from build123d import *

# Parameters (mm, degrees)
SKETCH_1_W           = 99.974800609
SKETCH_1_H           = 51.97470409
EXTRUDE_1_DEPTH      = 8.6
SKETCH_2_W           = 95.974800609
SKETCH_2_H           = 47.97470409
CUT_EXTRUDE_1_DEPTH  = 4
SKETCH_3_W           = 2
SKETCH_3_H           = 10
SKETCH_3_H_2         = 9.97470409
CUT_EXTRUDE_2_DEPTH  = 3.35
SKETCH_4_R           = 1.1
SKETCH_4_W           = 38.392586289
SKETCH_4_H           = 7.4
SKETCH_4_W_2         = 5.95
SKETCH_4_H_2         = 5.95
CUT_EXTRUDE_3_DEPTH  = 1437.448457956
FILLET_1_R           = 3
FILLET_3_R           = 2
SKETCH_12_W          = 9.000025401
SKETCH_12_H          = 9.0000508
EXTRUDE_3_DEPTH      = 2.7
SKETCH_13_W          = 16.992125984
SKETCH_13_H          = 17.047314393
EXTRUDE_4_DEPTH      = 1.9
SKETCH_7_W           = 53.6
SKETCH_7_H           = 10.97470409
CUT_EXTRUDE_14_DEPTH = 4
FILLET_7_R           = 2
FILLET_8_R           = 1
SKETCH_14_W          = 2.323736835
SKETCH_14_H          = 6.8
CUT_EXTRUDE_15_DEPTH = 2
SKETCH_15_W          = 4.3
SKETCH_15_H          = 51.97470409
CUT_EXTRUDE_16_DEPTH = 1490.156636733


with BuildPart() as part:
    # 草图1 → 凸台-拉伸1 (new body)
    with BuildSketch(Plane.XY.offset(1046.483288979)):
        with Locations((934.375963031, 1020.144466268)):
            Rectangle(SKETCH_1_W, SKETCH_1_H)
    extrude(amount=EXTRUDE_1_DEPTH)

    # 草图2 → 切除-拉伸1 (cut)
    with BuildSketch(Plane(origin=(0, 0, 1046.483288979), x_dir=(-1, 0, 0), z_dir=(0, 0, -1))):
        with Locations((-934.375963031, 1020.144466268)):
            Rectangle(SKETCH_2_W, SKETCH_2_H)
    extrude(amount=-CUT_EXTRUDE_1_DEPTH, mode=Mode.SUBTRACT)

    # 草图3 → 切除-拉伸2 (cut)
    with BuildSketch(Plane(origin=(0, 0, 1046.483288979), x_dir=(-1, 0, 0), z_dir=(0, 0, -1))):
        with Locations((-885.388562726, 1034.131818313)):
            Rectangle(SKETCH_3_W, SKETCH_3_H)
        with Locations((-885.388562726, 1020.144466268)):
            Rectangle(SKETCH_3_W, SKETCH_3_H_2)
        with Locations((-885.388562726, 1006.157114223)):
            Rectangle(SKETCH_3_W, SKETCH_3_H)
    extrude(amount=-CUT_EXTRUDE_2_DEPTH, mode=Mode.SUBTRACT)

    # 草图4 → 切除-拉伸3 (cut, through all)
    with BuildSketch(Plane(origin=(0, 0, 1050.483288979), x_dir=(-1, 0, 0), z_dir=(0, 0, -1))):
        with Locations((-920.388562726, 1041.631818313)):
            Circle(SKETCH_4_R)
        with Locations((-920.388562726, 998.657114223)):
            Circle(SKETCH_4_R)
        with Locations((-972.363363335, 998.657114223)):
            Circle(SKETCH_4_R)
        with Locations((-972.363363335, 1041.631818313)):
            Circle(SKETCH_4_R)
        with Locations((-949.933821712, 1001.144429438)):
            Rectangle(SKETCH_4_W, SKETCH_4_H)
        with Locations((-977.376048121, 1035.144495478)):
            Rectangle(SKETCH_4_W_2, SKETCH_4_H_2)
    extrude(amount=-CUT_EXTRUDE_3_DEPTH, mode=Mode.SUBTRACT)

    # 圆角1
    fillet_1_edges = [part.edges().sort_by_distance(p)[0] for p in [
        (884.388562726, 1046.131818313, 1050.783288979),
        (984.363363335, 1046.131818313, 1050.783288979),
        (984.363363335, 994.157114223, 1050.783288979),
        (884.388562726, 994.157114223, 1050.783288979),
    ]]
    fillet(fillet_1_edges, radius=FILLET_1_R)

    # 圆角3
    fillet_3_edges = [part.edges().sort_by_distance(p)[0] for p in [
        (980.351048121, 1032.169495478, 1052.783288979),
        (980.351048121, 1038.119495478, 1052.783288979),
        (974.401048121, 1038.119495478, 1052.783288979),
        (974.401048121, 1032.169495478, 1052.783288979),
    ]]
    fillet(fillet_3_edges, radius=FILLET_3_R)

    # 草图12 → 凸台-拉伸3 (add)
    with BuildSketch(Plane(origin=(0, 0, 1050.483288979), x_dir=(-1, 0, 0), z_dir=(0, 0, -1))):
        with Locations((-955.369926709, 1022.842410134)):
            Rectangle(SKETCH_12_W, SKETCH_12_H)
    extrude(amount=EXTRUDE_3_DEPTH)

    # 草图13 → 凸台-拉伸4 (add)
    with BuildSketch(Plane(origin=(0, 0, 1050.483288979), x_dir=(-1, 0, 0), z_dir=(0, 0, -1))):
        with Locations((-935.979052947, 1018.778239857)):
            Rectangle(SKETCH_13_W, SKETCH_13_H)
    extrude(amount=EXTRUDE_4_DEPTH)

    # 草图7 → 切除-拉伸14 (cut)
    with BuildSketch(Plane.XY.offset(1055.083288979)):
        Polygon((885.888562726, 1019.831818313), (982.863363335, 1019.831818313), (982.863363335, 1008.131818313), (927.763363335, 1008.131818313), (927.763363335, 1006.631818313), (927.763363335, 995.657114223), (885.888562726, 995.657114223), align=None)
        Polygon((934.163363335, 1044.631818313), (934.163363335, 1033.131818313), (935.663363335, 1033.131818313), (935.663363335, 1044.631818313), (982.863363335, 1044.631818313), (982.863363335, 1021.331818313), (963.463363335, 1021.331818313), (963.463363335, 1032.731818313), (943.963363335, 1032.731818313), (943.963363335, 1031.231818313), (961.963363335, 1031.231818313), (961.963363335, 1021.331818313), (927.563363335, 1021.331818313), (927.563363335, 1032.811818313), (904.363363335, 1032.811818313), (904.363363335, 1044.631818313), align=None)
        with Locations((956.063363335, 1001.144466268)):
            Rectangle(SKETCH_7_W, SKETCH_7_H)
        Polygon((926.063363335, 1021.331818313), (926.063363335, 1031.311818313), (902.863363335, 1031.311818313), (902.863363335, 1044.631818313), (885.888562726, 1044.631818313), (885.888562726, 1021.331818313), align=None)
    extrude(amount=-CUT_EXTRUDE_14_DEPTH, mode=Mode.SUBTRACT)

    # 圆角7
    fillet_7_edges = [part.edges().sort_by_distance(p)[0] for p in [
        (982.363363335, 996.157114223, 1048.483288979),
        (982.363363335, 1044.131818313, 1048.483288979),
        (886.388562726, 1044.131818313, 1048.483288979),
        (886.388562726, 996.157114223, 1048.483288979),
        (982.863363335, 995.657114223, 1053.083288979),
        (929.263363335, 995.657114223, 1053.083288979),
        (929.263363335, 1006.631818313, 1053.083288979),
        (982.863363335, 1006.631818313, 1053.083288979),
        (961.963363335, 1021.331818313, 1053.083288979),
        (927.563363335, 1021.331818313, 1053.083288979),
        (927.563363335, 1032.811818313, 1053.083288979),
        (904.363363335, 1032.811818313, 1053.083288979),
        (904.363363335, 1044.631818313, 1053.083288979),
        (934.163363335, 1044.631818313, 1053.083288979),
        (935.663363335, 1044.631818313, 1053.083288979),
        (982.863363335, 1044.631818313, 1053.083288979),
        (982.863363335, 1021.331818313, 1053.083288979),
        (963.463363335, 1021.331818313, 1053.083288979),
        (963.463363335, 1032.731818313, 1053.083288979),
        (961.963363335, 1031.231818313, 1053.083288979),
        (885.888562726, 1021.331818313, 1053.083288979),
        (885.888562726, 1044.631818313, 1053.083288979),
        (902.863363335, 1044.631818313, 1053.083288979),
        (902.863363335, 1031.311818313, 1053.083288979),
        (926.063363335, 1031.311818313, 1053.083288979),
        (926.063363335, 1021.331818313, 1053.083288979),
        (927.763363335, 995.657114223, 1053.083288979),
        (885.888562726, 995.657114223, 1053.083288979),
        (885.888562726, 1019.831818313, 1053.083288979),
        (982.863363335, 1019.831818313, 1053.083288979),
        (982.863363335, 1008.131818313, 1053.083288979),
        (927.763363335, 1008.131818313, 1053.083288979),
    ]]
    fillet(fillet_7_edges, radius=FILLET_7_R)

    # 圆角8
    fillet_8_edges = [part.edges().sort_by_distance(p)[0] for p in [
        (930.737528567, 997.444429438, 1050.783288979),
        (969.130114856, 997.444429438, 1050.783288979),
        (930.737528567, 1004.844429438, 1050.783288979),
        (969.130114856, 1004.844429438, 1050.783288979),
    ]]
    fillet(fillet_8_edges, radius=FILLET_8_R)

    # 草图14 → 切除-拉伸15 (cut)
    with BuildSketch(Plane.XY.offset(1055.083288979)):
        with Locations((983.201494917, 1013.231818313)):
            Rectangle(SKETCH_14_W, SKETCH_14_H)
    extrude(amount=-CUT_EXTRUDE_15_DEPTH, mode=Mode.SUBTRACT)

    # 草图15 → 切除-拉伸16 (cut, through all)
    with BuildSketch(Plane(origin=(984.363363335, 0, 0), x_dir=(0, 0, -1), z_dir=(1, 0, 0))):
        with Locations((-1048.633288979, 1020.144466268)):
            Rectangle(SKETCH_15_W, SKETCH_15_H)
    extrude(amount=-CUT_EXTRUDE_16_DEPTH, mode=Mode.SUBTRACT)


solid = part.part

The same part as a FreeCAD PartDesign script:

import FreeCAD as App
import Part
import Sketcher
from FreeCAD import Vector
Q = App.Units.Quantity


def edges_at(feature, points):
    """Names of the edges that pass closest to the given points."""
    edges = feature.Shape.Edges
    near = lambda p: min(range(len(edges)), key=lambda i: edges[i].distToShape(Part.Vertex(*p))[0])
    return sorted({f"Edge{near(p) + 1}" for p in points})

doc = App.newDocument("Part")
params = doc.addObject("Spreadsheet::Sheet", "Params")
for row, (alias, value) in enumerate([
    ("pad1_length", "8.6 mm"),
    ("pocket1_length", "4 mm"),
    ("sketch3_width", "2 mm"),
    ("sketch3_height", "10 mm"),
    ("pocket2_length", "3.35 mm"),
    ("sketch4_diameter", "2.2 mm"),
    ("sketch4_height", "7.4 mm"),
    ("sketch4_width", "5.95 mm"),
    ("fillet_radius", "3 mm"),
    ("fillet2_radius", "2 mm"),
    ("pad2_length", "2.7 mm"),
    ("pad3_length", "1.9 mm"),
    ("sketch7_width", "18 mm"),
    ("sketch7_width2", "55.1 mm"),
    ("sketch7_width3", "29.8 mm"),
    ("sketch7_width4", "23.2 mm"),
    ("sketch7_width5", "34.4 mm"),
    ("pocket4_length", "4 mm"),
    ("fillet3_radius", "2 mm"),
    ("fillet4_radius", "1 mm"),
    ("sketch8_height", "6.8 mm"),
    ("pocket5_length", "2 mm"),
    ("sketch9_height", "4.3 mm"),
], start=1):
    params.set(f"A{row}", alias)
    params.set(f"B{row}", "=" + value)
    params.setAlias(f"B{row}", alias)

body = doc.addObject("PartDesign::Body", "Body")

sketch1 = body.newObject("Sketcher::SketchObject", "Sketch")
sketch1.AttachmentSupport = (doc.getObject("XY_Plane"), [""])
sketch1.MapMode = "FlatFace"
sketch1.AttachmentOffset = App.Placement(Vector(0, 0, 1046.483289), App.Rotation())
sketch1.addGeometry(Part.LineSegment(Vector(884, 1046, 0), Vector(884, 994, 0)), False)
sketch1.addGeometry(Part.LineSegment(Vector(884, 994, 0), Vector(984, 994, 0)), False)
sketch1.addGeometry(Part.LineSegment(Vector(984, 994, 0), Vector(984, 1046, 0)), False)
sketch1.addGeometry(Part.LineSegment(Vector(984, 1046, 0), Vector(884, 1046, 0)), False)
sketch1.addConstraint(Sketcher.Constraint("Coincident", 0, 2, 1, 1))
sketch1.addConstraint(Sketcher.Constraint("Coincident", 1, 2, 2, 1))
sketch1.addConstraint(Sketcher.Constraint("Coincident", 2, 2, 3, 1))
sketch1.addConstraint(Sketcher.Constraint("Coincident", 3, 2, 0, 1))
sketch1.addConstraint(Sketcher.Constraint("Vertical", 0))
sketch1.addConstraint(Sketcher.Constraint("Horizontal", 1))
sketch1.addConstraint(Sketcher.Constraint("Vertical", 2))
sketch1.addConstraint(Sketcher.Constraint("Horizontal", 3))
sketch1.addConstraint(Sketcher.Constraint("DistanceX", 1, 1, 1, 2, Q("99.974801 mm")))
sketch1.addConstraint(Sketcher.Constraint("DistanceY", 0, 2, 0, 1, Q("51.974704 mm")))
sketch1.addConstraint(Sketcher.Constraint("DistanceY", -1, 1, 2, 2, Q("1046.131818 mm")))
sketch1.addConstraint(Sketcher.Constraint("DistanceX", -1, 1, 0, 2, Q("884.388563 mm")))
pad1 = body.newObject("PartDesign::Pad", "Pad")
pad1.Profile = sketch1
pad1.setExpression("Length", "Params.pad1_length")

sketch2 = body.newObject("Sketcher::SketchObject", "Sketch001")
sketch2.AttachmentSupport = (doc.getObject("XY_Plane"), [""])
sketch2.MapMode = "FlatFace"
sketch2.AttachmentOffset = App.Placement(Vector(0, 0, 1046.483289), App.Rotation())
sketch2.addGeometry(Part.LineSegment(Vector(982, 1044, 0), Vector(982, 996, 0)), False)
sketch2.addGeometry(Part.LineSegment(Vector(982, 996, 0), Vector(886, 996, 0)), False)
sketch2.addGeometry(Part.LineSegment(Vector(886, 996, 0), Vector(886, 1044, 0)), False)
sketch2.addGeometry(Part.LineSegment(Vector(886, 1044, 0), Vector(982, 1044, 0)), False)
sketch2.addConstraint(Sketcher.Constraint("Coincident", 0, 2, 1, 1))
sketch2.addConstraint(Sketcher.Constraint("Coincident", 1, 2, 2, 1))
sketch2.addConstraint(Sketcher.Constraint("Coincident", 2, 2, 3, 1))
sketch2.addConstraint(Sketcher.Constraint("Coincident", 3, 2, 0, 1))
sketch2.addConstraint(Sketcher.Constraint("Vertical", 0))
sketch2.addConstraint(Sketcher.Constraint("Horizontal", 1))
sketch2.addConstraint(Sketcher.Constraint("Vertical", 2))
sketch2.addConstraint(Sketcher.Constraint("Horizontal", 3))
sketch2.addConstraint(Sketcher.Constraint("DistanceX", 1, 2, 1, 1, Q("95.974801 mm")))
sketch2.addConstraint(Sketcher.Constraint("DistanceY", 0, 2, 0, 1, Q("47.974704 mm")))
sketch2.addConstraint(Sketcher.Constraint("DistanceY", -1, 1, 2, 2, Q("1044.131818 mm")))
sketch2.addConstraint(Sketcher.Constraint("DistanceX", -1, 1, 0, 2, Q("982.363363 mm")))
pocket1 = body.newObject("PartDesign::Pocket", "Pocket")
pocket1.Profile = sketch2
pocket1.setExpression("Length", "Params.pocket1_length")
pocket1.Reversed = True

sketch3 = body.newObject("Sketcher::SketchObject", "Sketch002")
sketch3.AttachmentSupport = (doc.getObject("XY_Plane"), [""])
sketch3.MapMode = "FlatFace"
sketch3.AttachmentOffset = App.Placement(Vector(0, 0, 1046.483289), App.Rotation())
sketch3.addGeometry(Part.LineSegment(Vector(886.4, 1039.1, 0), Vector(886.4, 1029.1, 0)), False)
sketch3.addGeometry(Part.LineSegment(Vector(886.4, 1029.1, 0), Vector(884.4, 1029.1, 0)), False)
sketch3.addGeometry(Part.LineSegment(Vector(884.4, 1029.1, 0), Vector(884.4, 1039.1, 0)), False)
sketch3.addGeometry(Part.LineSegment(Vector(884.4, 1039.1, 0), Vector(886.4, 1039.1, 0)), False)
sketch3.addGeometry(Part.LineSegment(Vector(886.4, 1025.1, 0), Vector(886.4, 1015.2, 0)), False)
sketch3.addGeometry(Part.LineSegment(Vector(886.4, 1015.2, 0), Vector(884.4, 1015.2, 0)), False)
sketch3.addGeometry(Part.LineSegment(Vector(884.4, 1015.2, 0), Vector(884.4, 1025.1, 0)), False)
sketch3.addGeometry(Part.LineSegment(Vector(884.4, 1025.1, 0), Vector(886.4, 1025.1, 0)), False)
sketch3.addGeometry(Part.LineSegment(Vector(886.4, 1011.2, 0), Vector(886.4, 1001.2, 0)), False)
sketch3.addGeometry(Part.LineSegment(Vector(886.4, 1001.2, 0), Vector(884.4, 1001.2, 0)), False)
sketch3.addGeometry(Part.LineSegment(Vector(884.4, 1001.2, 0), Vector(884.4, 1011.2, 0)), False)
sketch3.addGeometry(Part.LineSegment(Vector(884.4, 1011.2, 0), Vector(886.4, 1011.2, 0)), False)
sketch3.addConstraint(Sketcher.Constraint("Coincident", 0, 2, 1, 1))
sketch3.addConstraint(Sketcher.Constraint("Coincident", 1, 2, 2, 1))
sketch3.addConstraint(Sketcher.Constraint("Coincident", 2, 2, 3, 1))
sketch3.addConstraint(Sketcher.Constraint("Coincident", 3, 2, 0, 1))
sketch3.addConstraint(Sketcher.Constraint("Coincident", 4, 2, 5, 1))
sketch3.addConstraint(Sketcher.Constraint("Coincident", 5, 2, 6, 1))
sketch3.addConstraint(Sketcher.Constraint("Coincident", 6, 2, 7, 1))
sketch3.addConstraint(Sketcher.Constraint("Coincident", 7, 2, 4, 1))
sketch3.addConstraint(Sketcher.Constraint("Coincident", 8, 2, 9, 1))
sketch3.addConstraint(Sketcher.Constraint("Coincident", 9, 2, 10, 1))
sketch3.addConstraint(Sketcher.Constraint("Coincident", 10, 2, 11, 1))
sketch3.addConstraint(Sketcher.Constraint("Coincident", 11, 2, 8, 1))
sketch3.addConstraint(Sketcher.Constraint("Vertical", 0))
sketch3.addConstraint(Sketcher.Constraint("Horizontal", 1))
sketch3.addConstraint(Sketcher.Constraint("Vertical", 2))
sketch3.addConstraint(Sketcher.Constraint("Horizontal", 3))
sketch3.addConstraint(Sketcher.Constraint("Vertical", 4))
sketch3.addConstraint(Sketcher.Constraint("Horizontal", 5))
sketch3.addConstraint(Sketcher.Constraint("Vertical", 6))
sketch3.addConstraint(Sketcher.Constraint("Horizontal", 7))
sketch3.addConstraint(Sketcher.Constraint("Vertical", 8))
sketch3.addConstraint(Sketcher.Constraint("Horizontal", 9))
sketch3.addConstraint(Sketcher.Constraint("Vertical", 10))
sketch3.addConstraint(Sketcher.Constraint("Horizontal", 11))
sketch3.addConstraint(Sketcher.Constraint("Vertical", 3, 2, 4, 2))
sketch3.addConstraint(Sketcher.Constraint("Vertical", 2, 2, 5, 2))
sketch3.addConstraint(Sketcher.Constraint("Vertical", 7, 2, 8, 2))
sketch3.addConstraint(Sketcher.Constraint("Vertical", 6, 2, 9, 2))
sketch3.addConstraint(Sketcher.Constraint("Equal", 2, 8))
sketch3.addConstraint(Sketcher.Constraint("DistanceX", 1, 2, 1, 1, Q("2 mm")))
sketch3.addConstraint(Sketcher.Constraint("DistanceY", 0, 2, 0, 1, Q("10 mm")))
sketch3.addConstraint(Sketcher.Constraint("DistanceY", 6, 2, 1, 2, Q("4 mm")))
sketch3.addConstraint(Sketcher.Constraint("DistanceY", 8, 2, 4, 2, Q("14 mm")))
sketch3.addConstraint(Sketcher.Constraint("DistanceY", 4, 2, 4, 1, Q("9.974704 mm")))
sketch3.addConstraint(Sketcher.Constraint("DistanceY", -1, 1, 0, 2, Q("1029.131818 mm")))
sketch3.addConstraint(Sketcher.Constraint("DistanceX", -1, 1, 0, 2, Q("886.388563 mm")))
sketch3.setExpression("Constraints[29]", "Params.sketch3_width")
sketch3.setExpression("Constraints[30]", "Params.sketch3_height")
pocket2 = body.newObject("PartDesign::Pocket", "Pocket001")
pocket2.Profile = sketch3
pocket2.setExpression("Length", "Params.pocket2_length")
pocket2.Reversed = True

sketch4 = body.newObject("Sketcher::SketchObject", "Sketch003")
sketch4.AttachmentSupport = (doc.getObject("XY_Plane"), [""])
sketch4.MapMode = "FlatFace"
sketch4.AttachmentOffset = App.Placement(Vector(0, 0, 1050.483289), App.Rotation())
sketch4.addGeometry(Part.Circle(Vector(920.4, 1041.6, 0), Vector(0, 0, 1), 1.1), False)
sketch4.addGeometry(Part.Circle(Vector(920.4, 998.7, 0), Vector(0, 0, 1), 1.1), False)
sketch4.addGeometry(Part.Circle(Vector(972.4, 998.7, 0), Vector(0, 0, 1), 1.1), False)
sketch4.addGeometry(Part.Circle(Vector(972.4, 1041.6, 0), Vector(0, 0, 1), 1.1), False)
sketch4.addGeometry(Part.LineSegment(Vector(969.1, 1004.8, 0), Vector(969.1, 997.4, 0)), False)
sketch4.addGeometry(Part.LineSegment(Vector(969.1, 997.4, 0), Vector(930.7, 997.4, 0)), False)
sketch4.addGeometry(Part.LineSegment(Vector(930.7, 997.4, 0), Vector(930.7, 1004.8, 0)), False)
sketch4.addGeometry(Part.LineSegment(Vector(930.7, 1004.8, 0), Vector(969.1, 1004.8, 0)), False)
sketch4.addGeometry(Part.LineSegment(Vector(980.4, 1038.1, 0), Vector(980.4, 1032.2, 0)), False)
sketch4.addGeometry(Part.LineSegment(Vector(980.4, 1032.2, 0), Vector(974.4, 1032.2, 0)), False)
sketch4.addGeometry(Part.LineSegment(Vector(974.4, 1032.2, 0), Vector(974.4, 1038.1, 0)), False)
sketch4.addGeometry(Part.LineSegment(Vector(974.4, 1038.1, 0), Vector(980.4, 1038.1, 0)), False)
sketch4.addConstraint(Sketcher.Constraint("Coincident", 4, 2, 5, 1))
sketch4.addConstraint(Sketcher.Constraint("Coincident", 5, 2, 6, 1))
sketch4.addConstraint(Sketcher.Constraint("Coincident", 6, 2, 7, 1))
sketch4.addConstraint(Sketcher.Constraint("Coincident", 7, 2, 4, 1))
sketch4.addConstraint(Sketcher.Constraint("Coincident", 8, 2, 9, 1))
sketch4.addConstraint(Sketcher.Constraint("Coincident", 9, 2, 10, 1))
sketch4.addConstraint(Sketcher.Constraint("Coincident", 10, 2, 11, 1))
sketch4.addConstraint(Sketcher.Constraint("Coincident", 11, 2, 8, 1))
sketch4.addConstraint(Sketcher.Constraint("Vertical", 4))
sketch4.addConstraint(Sketcher.Constraint("Horizontal", 5))
sketch4.addConstraint(Sketcher.Constraint("Vertical", 6))
sketch4.addConstraint(Sketcher.Constraint("Horizontal", 7))
sketch4.addConstraint(Sketcher.Constraint("Vertical", 8))
sketch4.addConstraint(Sketcher.Constraint("Horizontal", 9))
sketch4.addConstraint(Sketcher.Constraint("Vertical", 10))
sketch4.addConstraint(Sketcher.Constraint("Horizontal", 11))
sketch4.addConstraint(Sketcher.Constraint("Equal", 0, 1))
sketch4.addConstraint(Sketcher.Constraint("Equal", 1, 2))
sketch4.addConstraint(Sketcher.Constraint("Equal", 2, 3))
sketch4.addConstraint(Sketcher.Constraint("Horizontal", 1, 3, 2, 3))
sketch4.addConstraint(Sketcher.Constraint("Horizontal", 0, 3, 3, 3))
sketch4.addConstraint(Sketcher.Constraint("Vertical", 0, 3, 1, 3))
sketch4.addConstraint(Sketcher.Constraint("Vertical", 2, 3, 3, 3))
sketch4.addConstraint(Sketcher.Constraint("Equal", 11, 8))
sketch4.addConstraint(Sketcher.Constraint("Diameter", 0, Q("2.2 mm")))
sketch4.addConstraint(Sketcher.Constraint("DistanceY", 4, 2, 4, 1, Q("7.4 mm")))
sketch4.addConstraint(Sketcher.Constraint("DistanceX", 9, 2, 9, 1, Q("5.95 mm")))
sketch4.addConstraint(Sketcher.Constraint("DistanceX", 1, 3, 2, 3, Q("51.974801 mm")))
sketch4.addConstraint(Sketcher.Constraint("DistanceX", 5, 2, 5, 1, Q("38.392586 mm")))
sketch4.addConstraint(Sketcher.Constraint("DistanceY", -1, 1, 0, 3, Q("1041.631818 mm")))
sketch4.addConstraint(Sketcher.Constraint("DistanceY", -1, 1, 4, 2, Q("997.444429 mm")))
sketch4.addConstraint(Sketcher.Constraint("DistanceX", -1, 1, 5, 2, Q("930.737529 mm")))
sketch4.addConstraint(Sketcher.Constraint("DistanceX", -1, 1, 8, 2, Q("980.351048 mm")))
sketch4.addConstraint(Sketcher.Constraint("DistanceX", 4, 2, 2, 3, Q("3.233248 mm")))
sketch4.addConstraint(Sketcher.Constraint("DistanceY", 2, 3, 8, 2, Q("33.512381 mm")))
sketch4.addConstraint(Sketcher.Constraint("DistanceY", -1, 1, 1, 3, Q("998.657114 mm")))
sketch4.setExpression("Constraints[24]", "Params.sketch4_diameter")
sketch4.setExpression("Constraints[25]", "Params.sketch4_height")
sketch4.setExpression("Constraints[26]", "Params.sketch4_width")
pocket3 = body.newObject("PartDesign::Pocket", "Pocket002")
pocket3.Profile = sketch4
pocket3.Type = "ThroughAll"
pocket3.Reversed = True
doc.recompute()

fillet = body.newObject("PartDesign::Fillet", "Fillet")
fillet.Base = (pocket3, edges_at(pocket3, [
    (884.389, 1046.132, 1050.783),
    (984.363, 1046.132, 1050.783),
    (984.363, 994.157, 1050.783),
    (884.389, 994.157, 1050.783),
]))
fillet.setExpression("Radius", "Params.fillet_radius")
doc.recompute()

fillet2 = body.newObject("PartDesign::Fillet", "Fillet001")
fillet2.Base = (fillet, edges_at(fillet, [
    (980.351, 1032.169, 1052.783),
    (980.351, 1038.119, 1052.783),
    (974.401, 1038.119, 1052.783),
    (974.401, 1032.169, 1052.783),
]))
fillet2.setExpression("Radius", "Params.fillet2_radius")

sketch5 = body.newObject("Sketcher::SketchObject", "Sketch004")
sketch5.AttachmentSupport = (doc.getObject("XY_Plane"), [""])
sketch5.MapMode = "FlatFace"
sketch5.AttachmentOffset = App.Placement(Vector(0, 0, 1050.483289), App.Rotation())
sketch5.addGeometry(Part.LineSegment(Vector(960, 1027, 0), Vector(960, 1018, 0)), False)
sketch5.addGeometry(Part.LineSegment(Vector(960, 1018, 0), Vector(951, 1018, 0)), False)
sketch5.addGeometry(Part.LineSegment(Vector(951, 1018, 0), Vector(951, 1027, 0)), False)
sketch5.addGeometry(Part.LineSegment(Vector(951, 1027, 0), Vector(960, 1027, 0)), False)
sketch5.addConstraint(Sketcher.Constraint("Coincident", 0, 2, 1, 1))
sketch5.addConstraint(Sketcher.Constraint("Coincident", 1, 2, 2, 1))
sketch5.addConstraint(Sketcher.Constraint("Coincident", 2, 2, 3, 1))
sketch5.addConstraint(Sketcher.Constraint("Coincident", 3, 2, 0, 1))
sketch5.addConstraint(Sketcher.Constraint("Vertical", 0))
sketch5.addConstraint(Sketcher.Constraint("Horizontal", 1))
sketch5.addConstraint(Sketcher.Constraint("Vertical", 2))
sketch5.addConstraint(Sketcher.Constraint("Horizontal", 3))
sketch5.addConstraint(Sketcher.Constraint("DistanceY", 0, 2, 0, 1, Q("9.000051 mm")))
sketch5.addConstraint(Sketcher.Constraint("DistanceX", 1, 2, 1, 1, Q("9.000025 mm")))
sketch5.addConstraint(Sketcher.Constraint("DistanceX", -1, 1, 0, 2, Q("959.869939 mm")))
sketch5.addConstraint(Sketcher.Constraint("DistanceY", -1, 1, 0, 2, Q("1018.342385 mm")))
pad2 = body.newObject("PartDesign::Pad", "Pad001")
pad2.Profile = sketch5
pad2.setExpression("Length", "Params.pad2_length")
pad2.Reversed = True

sketch6 = body.newObject("Sketcher::SketchObject", "Sketch005")
sketch6.AttachmentSupport = (doc.getObject("XY_Plane"), [""])
sketch6.MapMode = "FlatFace"
sketch6.AttachmentOffset = App.Placement(Vector(0, 0, 1050.483289), App.Rotation())
sketch6.addGeometry(Part.LineSegment(Vector(944, 1027, 0), Vector(944, 1010, 0)), False)
sketch6.addGeometry(Part.LineSegment(Vector(944, 1010, 0), Vector(927, 1010, 0)), False)
sketch6.addGeometry(Part.LineSegment(Vector(927, 1010, 0), Vector(927, 1027, 0)), False)
sketch6.addGeometry(Part.LineSegment(Vector(927, 1027, 0), Vector(944, 1027, 0)), False)
sketch6.addConstraint(Sketcher.Constraint("Coincident", 0, 2, 1, 1))
sketch6.addConstraint(Sketcher.Constraint("Coincident", 1, 2, 2, 1))
sketch6.addConstraint(Sketcher.Constraint("Coincident", 2, 2, 3, 1))
sketch6.addConstraint(Sketcher.Constraint("Coincident", 3, 2, 0, 1))
sketch6.addConstraint(Sketcher.Constraint("Vertical", 0))
sketch6.addConstraint(Sketcher.Constraint("Horizontal", 1))
sketch6.addConstraint(Sketcher.Constraint("Vertical", 2))
sketch6.addConstraint(Sketcher.Constraint("Horizontal", 3))
sketch6.addConstraint(Sketcher.Constraint("DistanceX", 1, 2, 1, 1, Q("16.992126 mm")))
sketch6.addConstraint(Sketcher.Constraint("DistanceY", 0, 2, 0, 1, Q("17.047314 mm")))
sketch6.addConstraint(Sketcher.Constraint("DistanceX", -1, 1, 1, 2, Q("927.48299 mm")))
sketch6.addConstraint(Sketcher.Constraint("DistanceY", -1, 1, 0, 2, Q("1010.254583 mm")))
pad3 = body.newObject("PartDesign::Pad", "Pad002")
pad3.Profile = sketch6
pad3.setExpression("Length", "Params.pad3_length")
pad3.Reversed = True

sketch7 = body.newObject("Sketcher::SketchObject", "Sketch006")
sketch7.AttachmentSupport = (doc.getObject("XY_Plane"), [""])
sketch7.MapMode = "FlatFace"
sketch7.AttachmentOffset = App.Placement(Vector(0, 0, 1055.083289), App.Rotation())
sketch7.addGeometry(Part.LineSegment(Vector(982.9, 1019.8, 0), Vector(885.9, 1019.8, 0)), False)
sketch7.addGeometry(Part.LineSegment(Vector(885.9, 1019.8, 0), Vector(885.9, 995.7, 0)), False)
sketch7.addGeometry(Part.LineSegment(Vector(885.9, 995.7, 0), Vector(927.8, 995.7, 0)), False)
sketch7.addGeometry(Part.LineSegment(Vector(927.8, 995.7, 0), Vector(927.8, 1008.1, 0)), False)
sketch7.addGeometry(Part.LineSegment(Vector(927.8, 1008.1, 0), Vector(982.9, 1008.1, 0)), False)
sketch7.addGeometry(Part.LineSegment(Vector(982.9, 1008.1, 0), Vector(982.9, 1019.8, 0)), False)
sketch7.addGeometry(Part.LineSegment(Vector(934.2, 1033.1, 0), Vector(934.2, 1044.6, 0)), False)
sketch7.addGeometry(Part.LineSegment(Vector(934.2, 1044.6, 0), Vector(904.4, 1044.6, 0)), False)
sketch7.addGeometry(Part.LineSegment(Vector(904.4, 1044.6, 0), Vector(904.4, 1032.8, 0)), False)
sketch7.addGeometry(Part.LineSegment(Vector(904.4, 1032.8, 0), Vector(927.6, 1032.8, 0)), False)
sketch7.addGeometry(Part.LineSegment(Vector(927.6, 1032.8, 0), Vector(927.6, 1021.3, 0)), False)
sketch7.addGeometry(Part.LineSegment(Vector(927.6, 1021.3, 0), Vector(962, 1021.3, 0)), False)
sketch7.addGeometry(Part.LineSegment(Vector(962, 1021.3, 0), Vector(962, 1031.2, 0)), False)
sketch7.addGeometry(Part.LineSegment(Vector(962, 1031.2, 0), Vector(944, 1031.2, 0)), False)
sketch7.addGeometry(Part.LineSegment(Vector(944, 1031.2, 0), Vector(944, 1032.7, 0)), False)
sketch7.addGeometry(Part.LineSegment(Vector(944, 1032.7, 0), Vector(963.5, 1032.7, 0)), False)
sketch7.addGeometry(Part.LineSegment(Vector(963.5, 1032.7, 0), Vector(963.5, 1021.3, 0)), False)
sketch7.addGeometry(Part.LineSegment(Vector(963.5, 1021.3, 0), Vector(982.9, 1021.3, 0)), False)
sketch7.addGeometry(Part.LineSegment(Vector(982.9, 1021.3, 0), Vector(982.9, 1044.6, 0)), False)
sketch7.addGeometry(Part.LineSegment(Vector(982.9, 1044.6, 0), Vector(935.7, 1044.6, 0)), False)
sketch7.addGeometry(Part.LineSegment(Vector(935.7, 1044.6, 0), Vector(935.7, 1033.1, 0)), False)
sketch7.addGeometry(Part.LineSegment(Vector(935.7, 1033.1, 0), Vector(934.2, 1033.1, 0)), False)
sketch7.addGeometry(Part.LineSegment(Vector(929.3, 1006.6, 0), Vector(929.3, 995.7, 0)), False)
sketch7.addGeometry(Part.LineSegment(Vector(929.3, 995.7, 0), Vector(982.9, 995.7, 0)), False)
sketch7.addGeometry(Part.LineSegment(Vector(982.9, 995.7, 0), Vector(982.9, 1006.6, 0)), False)
sketch7.addGeometry(Part.LineSegment(Vector(982.9, 1006.6, 0), Vector(929.3, 1006.6, 0)), False)
sketch7.addGeometry(Part.LineSegment(Vector(926.1, 1021.3, 0), Vector(926.1, 1031.3, 0)), False)
sketch7.addGeometry(Part.LineSegment(Vector(926.1, 1031.3, 0), Vector(902.9, 1031.3, 0)), False)
sketch7.addGeometry(Part.LineSegment(Vector(902.9, 1031.3, 0), Vector(902.9, 1044.6, 0)), False)
sketch7.addGeometry(Part.LineSegment(Vector(902.9, 1044.6, 0), Vector(885.9, 1044.6, 0)), False)
sketch7.addGeometry(Part.LineSegment(Vector(885.9, 1044.6, 0), Vector(885.9, 1021.3, 0)), False)
sketch7.addGeometry(Part.LineSegment(Vector(885.9, 1021.3, 0), Vector(926.1, 1021.3, 0)), False)
sketch7.addConstraint(Sketcher.Constraint("Coincident", 0, 2, 1, 1))
sketch7.addConstraint(Sketcher.Constraint("Coincident", 1, 2, 2, 1))
sketch7.addConstraint(Sketcher.Constraint("Coincident", 2, 2, 3, 1))
sketch7.addConstraint(Sketcher.Constraint("Coincident", 3, 2, 4, 1))
sketch7.addConstraint(Sketcher.Constraint("Coincident", 4, 2, 5, 1))
sketch7.addConstraint(Sketcher.Constraint("Coincident", 5, 2, 0, 1))
sketch7.addConstraint(Sketcher.Constraint("Coincident", 6, 2, 7, 1))
sketch7.addConstraint(Sketcher.Constraint("Coincident", 7, 2, 8, 1))
sketch7.addConstraint(Sketcher.Constraint("Coincident", 8, 2, 9, 1))
sketch7.addConstraint(Sketcher.Constraint("Coincident", 9, 2, 10, 1))
sketch7.addConstraint(Sketcher.Constraint("Coincident", 10, 2, 11, 1))
sketch7.addConstraint(Sketcher.Constraint("Coincident", 11, 2, 12, 1))
sketch7.addConstraint(Sketcher.Constraint("Coincident", 12, 2, 13, 1))
sketch7.addConstraint(Sketcher.Constraint("Coincident", 13, 2, 14, 1))
sketch7.addConstraint(Sketcher.Constraint("Coincident", 14, 2, 15, 1))
sketch7.addConstraint(Sketcher.Constraint("Coincident", 15, 2, 16, 1))
sketch7.addConstraint(Sketcher.Constraint("Coincident", 16, 2, 17, 1))
sketch7.addConstraint(Sketcher.Constraint("Coincident", 17, 2, 18, 1))
sketch7.addConstraint(Sketcher.Constraint("Coincident", 18, 2, 19, 1))
sketch7.addConstraint(Sketcher.Constraint("Coincident", 19, 2, 20, 1))
sketch7.addConstraint(Sketcher.Constraint("Coincident", 20, 2, 21, 1))
sketch7.addConstraint(Sketcher.Constraint("Coincident", 21, 2, 6, 1))
sketch7.addConstraint(Sketcher.Constraint("Coincident", 22, 2, 23, 1))
sketch7.addConstraint(Sketcher.Constraint("Coincident", 23, 2, 24, 1))
sketch7.addConstraint(Sketcher.Constraint("Coincident", 24, 2, 25, 1))
sketch7.addConstraint(Sketcher.Constraint("Coincident", 25, 2, 22, 1))
sketch7.addConstraint(Sketcher.Constraint("Coincident", 26, 2, 27, 1))
sketch7.addConstraint(Sketcher.Constraint("Coincident", 27, 2, 28, 1))
sketch7.addConstraint(Sketcher.Constraint("Coincident", 28, 2, 29, 1))
sketch7.addConstraint(Sketcher.Constraint("Coincident", 29, 2, 30, 1))
sketch7.addConstraint(Sketcher.Constraint("Coincident", 30, 2, 31, 1))
sketch7.addConstraint(Sketcher.Constraint("Coincident", 31, 2, 26, 1))
sketch7.addConstraint(Sketcher.Constraint("Horizontal", 0))
sketch7.addConstraint(Sketcher.Constraint("Vertical", 1))
sketch7.addConstraint(Sketcher.Constraint("Horizontal", 2))
sketch7.addConstraint(Sketcher.Constraint("Vertical", 3))
sketch7.addConstraint(Sketcher.Constraint("Horizontal", 4))
sketch7.addConstraint(Sketcher.Constraint("Vertical", 5))
sketch7.addConstraint(Sketcher.Constraint("Vertical", 6))
sketch7.addConstraint(Sketcher.Constraint("Horizontal", 7))
sketch7.addConstraint(Sketcher.Constraint("Vertical", 8))
sketch7.addConstraint(Sketcher.Constraint("Horizontal", 9))
sketch7.addConstraint(Sketcher.Constraint("Vertical", 10))
sketch7.addConstraint(Sketcher.Constraint("Horizontal", 11))
sketch7.addConstraint(Sketcher.Constraint("Vertical", 12))
sketch7.addConstraint(Sketcher.Constraint("Horizontal", 13))
sketch7.addConstraint(Sketcher.Constraint("Vertical", 14))
sketch7.addConstraint(Sketcher.Constraint("Horizontal", 15))
sketch7.addConstraint(Sketcher.Constraint("Vertical", 16))
sketch7.addConstraint(Sketcher.Constraint("Horizontal", 17))
sketch7.addConstraint(Sketcher.Constraint("Vertical", 18))
sketch7.addConstraint(Sketcher.Constraint("Horizontal", 19))
sketch7.addConstraint(Sketcher.Constraint("Vertical", 20))
sketch7.addConstraint(Sketcher.Constraint("Horizontal", 21))
sketch7.addConstraint(Sketcher.Constraint("Vertical", 22))
sketch7.addConstraint(Sketcher.Constraint("Horizontal", 23))
sketch7.addConstraint(Sketcher.Constraint("Vertical", 24))
sketch7.addConstraint(Sketcher.Constraint("Horizontal", 25))
sketch7.addConstraint(Sketcher.Constraint("Vertical", 26))
sketch7.addConstraint(Sketcher.Constraint("Horizontal", 27))
sketch7.addConstraint(Sketcher.Constraint("Vertical", 28))
sketch7.addConstraint(Sketcher.Constraint("Horizontal", 29))
sketch7.addConstraint(Sketcher.Constraint("Vertical", 30))
sketch7.addConstraint(Sketcher.Constraint("Horizontal", 31))
sketch7.addConstraint(Sketcher.Constraint("Horizontal", 11, 2, 16, 2))
sketch7.addConstraint(Sketcher.Constraint("Horizontal", 7, 2, 18, 2))
sketch7.addConstraint(Sketcher.Constraint("Horizontal", 2, 2, 22, 2))
sketch7.addConstraint(Sketcher.Constraint("Horizontal", 19, 2, 28, 2))
sketch7.addConstraint(Sketcher.Constraint("Horizontal", 17, 2, 30, 2))
sketch7.addConstraint(Sketcher.Constraint("Vertical", 5, 2, 17, 2))
sketch7.addConstraint(Sketcher.Constraint("Vertical", 18, 2, 23, 2))
sketch7.addConstraint(Sketcher.Constraint("Vertical", 1, 2, 29, 2))
sketch7.addConstraint(Sketcher.Constraint("Equal", 9, 27))
sketch7.addConstraint(Sketcher.Constraint("Equal", 21, 14))
sketch7.addConstraint(Sketcher.Constraint("DistanceX", 13, 2, 13, 1, Q("18 mm")))
sketch7.addConstraint(Sketcher.Constraint("DistanceX", 4, 1, 4, 2, Q("55.1 mm")))
sketch7.addConstraint(Sketcher.Constraint("DistanceX", 7, 2, 7, 1, Q("29.8 mm")))
sketch7.addConstraint(Sketcher.Constraint("DistanceX", 9, 1, 9, 2, Q("23.2 mm")))
sketch7.addConstraint(Sketcher.Constraint("DistanceX", 11, 1, 11, 2, Q("34.4 mm")))
sketch7.addConstraint(Sketcher.Constraint("DistanceX", 15, 1, 15, 2, Q("19.5 mm")))
sketch7.addConstraint(Sketcher.Constraint("DistanceX", 17, 1, 17, 2, Q("19.4 mm")))
sketch7.addConstraint(Sketcher.Constraint("DistanceX", 19, 2, 19, 1, Q("47.2 mm")))
sketch7.addConstraint(Sketcher.Constraint("DistanceX", 23, 1, 23, 2, Q("53.6 mm")))
sketch7.addConstraint(Sketcher.Constraint("DistanceY", 5, 1, 5, 2, Q("11.7 mm")))
sketch7.addConstraint(Sketcher.Constraint("DistanceY", 6, 1, 6, 2, Q("11.5 mm")))
sketch7.addConstraint(Sketcher.Constraint("DistanceY", 12, 1, 12, 2, Q("9.9 mm")))
sketch7.addConstraint(Sketcher.Constraint("DistanceY", 18, 1, 18, 2, Q("23.3 mm")))
sketch7.addConstraint(Sketcher.Constraint("DistanceY", 8, 2, 8, 1, Q("11.82 mm")))
sketch7.addConstraint(Sketcher.Constraint("DistanceY", 26, 1, 26, 2, Q("9.98 mm")))
sketch7.addConstraint(Sketcher.Constraint("DistanceY", 3, 2, 6, 2, Q("36.5 mm")))
sketch7.addConstraint(Sketcher.Constraint("DistanceY", 24, 2, 4, 2, Q("1.5 mm")))
sketch7.addConstraint(Sketcher.Constraint("DistanceX", 26, 2, 9, 2, Q("1.5 mm")))
sketch7.addConstraint(Sketcher.Constraint("DistanceX", 0, 2, 0, 1, Q("96.974801 mm")))
sketch7.addConstraint(Sketcher.Constraint("DistanceY", 1, 2, 1, 1, Q("24.174704 mm")))
sketch7.addConstraint(Sketcher.Constraint("DistanceY", -1, 1, 0, 2, Q("1019.831818 mm")))
sketch7.addConstraint(Sketcher.Constraint("DistanceX", -1, 1, 0, 2, Q("885.888563 mm")))
sketch7.setExpression("Constraints[74]", "Params.sketch7_width")
sketch7.setExpression("Constraints[75]", "Params.sketch7_width2")
sketch7.setExpression("Constraints[76]", "Params.sketch7_width3")
sketch7.setExpression("Constraints[77]", "Params.sketch7_width4")
sketch7.setExpression("Constraints[78]", "Params.sketch7_width5")
pocket4 = body.newObject("PartDesign::Pocket", "Pocket003")
pocket4.Profile = sketch7
pocket4.setExpression("Length", "Params.pocket4_length")
doc.recompute()

fillet3 = body.newObject("PartDesign::Fillet", "Fillet002")
fillet3.Base = (pocket4, edges_at(pocket4, [
    (982.363, 996.157, 1048.483),
    (982.363, 1044.132, 1048.483),
    (886.389, 1044.132, 1048.483),
    (886.389, 996.157, 1048.483),
    (982.863, 995.657, 1053.083),
    (929.263, 995.657, 1053.083),
    (929.263, 1006.632, 1053.083),
    (982.863, 1006.632, 1053.083),
    (961.963, 1021.332, 1053.083),
    (927.563, 1021.332, 1053.083),
    (927.563, 1032.812, 1053.083),
    (904.363, 1032.812, 1053.083),
    (904.363, 1044.632, 1053.083),
    (934.163, 1044.632, 1053.083),
    (935.663, 1044.632, 1053.083),
    (982.863, 1044.632, 1053.083),
    (982.863, 1021.332, 1053.083),
    (963.463, 1021.332, 1053.083),
    (963.463, 1032.732, 1053.083),
    (961.963, 1031.232, 1053.083),
    (885.889, 1021.332, 1053.083),
    (885.889, 1044.632, 1053.083),
    (902.863, 1044.632, 1053.083),
    (902.863, 1031.312, 1053.083),
    (926.063, 1031.312, 1053.083),
    (926.063, 1021.332, 1053.083),
    (927.763, 995.657, 1053.083),
    (885.889, 995.657, 1053.083),
    (885.889, 1019.832, 1053.083),
    (982.863, 1019.832, 1053.083),
    (982.863, 1008.132, 1053.083),
    (927.763, 1008.132, 1053.083),
]))
fillet3.setExpression("Radius", "Params.fillet3_radius")
doc.recompute()

fillet4 = body.newObject("PartDesign::Fillet", "Fillet003")
fillet4.Base = (fillet3, edges_at(fillet3, [
    (930.738, 997.444, 1050.783),
    (969.13, 997.444, 1050.783),
    (930.738, 1004.844, 1050.783),
    (969.13, 1004.844, 1050.783),
]))
fillet4.setExpression("Radius", "Params.fillet4_radius")

sketch8 = body.newObject("Sketcher::SketchObject", "Sketch007")
sketch8.AttachmentSupport = (doc.getObject("XY_Plane"), [""])
sketch8.MapMode = "FlatFace"
sketch8.AttachmentOffset = App.Placement(Vector(0, 0, 1055.083289), App.Rotation())
sketch8.addGeometry(Part.LineSegment(Vector(982, 1016.6, 0), Vector(982, 1009.8, 0)), False)
sketch8.addGeometry(Part.LineSegment(Vector(982, 1009.8, 0), Vector(984.4, 1009.8, 0)), False)
sketch8.addGeometry(Part.LineSegment(Vector(984.4, 1009.8, 0), Vector(984.4, 1016.6, 0)), False)
sketch8.addGeometry(Part.LineSegment(Vector(984.4, 1016.6, 0), Vector(982, 1016.6, 0)), False)
sketch8.addConstraint(Sketcher.Constraint("Coincident", 0, 2, 1, 1))
sketch8.addConstraint(Sketcher.Constraint("Coincident", 1, 2, 2, 1))
sketch8.addConstraint(Sketcher.Constraint("Coincident", 2, 2, 3, 1))
sketch8.addConstraint(Sketcher.Constraint("Coincident", 3, 2, 0, 1))
sketch8.addConstraint(Sketcher.Constraint("Vertical", 0))
sketch8.addConstraint(Sketcher.Constraint("Horizontal", 1))
sketch8.addConstraint(Sketcher.Constraint("Vertical", 2))
sketch8.addConstraint(Sketcher.Constraint("Horizontal", 3))
sketch8.addConstraint(Sketcher.Constraint("DistanceY", 0, 2, 0, 1, Q("6.8 mm")))
sketch8.addConstraint(Sketcher.Constraint("DistanceX", 1, 1, 1, 2, Q("2.323737 mm")))
sketch8.addConstraint(Sketcher.Constraint("DistanceY", -1, 1, 0, 2, Q("1009.831818 mm")))
sketch8.addConstraint(Sketcher.Constraint("DistanceX", -1, 1, 0, 2, Q("982.039626 mm")))
sketch8.setExpression("Constraints[8]", "Params.sketch8_height")
pocket5 = body.newObject("PartDesign::Pocket", "Pocket004")
pocket5.Profile = sketch8
pocket5.setExpression("Length", "Params.pocket5_length")

sketch9 = body.newObject("Sketcher::SketchObject", "Sketch008")
sketch9.AttachmentSupport = (doc.getObject("YZ_Plane"), [""])
sketch9.MapMode = "FlatFace"
sketch9.AttachmentOffset = App.Placement(Vector(0, 0, 984.363363), App.Rotation())
sketch9.addGeometry(Part.LineSegment(Vector(1046.1, 1050.8, 0), Vector(994.2, 1050.8, 0)), False)
sketch9.addGeometry(Part.LineSegment(Vector(994.2, 1050.8, 0), Vector(994.2, 1046.5, 0)), False)
sketch9.addGeometry(Part.LineSegment(Vector(994.2, 1046.5, 0), Vector(1046.1, 1046.5, 0)), False)
sketch9.addGeometry(Part.LineSegment(Vector(1046.1, 1046.5, 0), Vector(1046.1, 1050.8, 0)), False)
sketch9.addConstraint(Sketcher.Constraint("Coincident", 0, 2, 1, 1))
sketch9.addConstraint(Sketcher.Constraint("Coincident", 1, 2, 2, 1))
sketch9.addConstraint(Sketcher.Constraint("Coincident", 2, 2, 3, 1))
sketch9.addConstraint(Sketcher.Constraint("Coincident", 3, 2, 0, 1))
sketch9.addConstraint(Sketcher.Constraint("Horizontal", 0))
sketch9.addConstraint(Sketcher.Constraint("Vertical", 1))
sketch9.addConstraint(Sketcher.Constraint("Horizontal", 2))
sketch9.addConstraint(Sketcher.Constraint("Vertical", 3))
sketch9.addConstraint(Sketcher.Constraint("DistanceY", 1, 2, 1, 1, Q("4.3 mm")))
sketch9.addConstraint(Sketcher.Constraint("DistanceX", 0, 2, 0, 1, Q("51.974704 mm")))
sketch9.addConstraint(Sketcher.Constraint("DistanceY", -1, 1, 0, 2, Q("1050.783289 mm")))
sketch9.addConstraint(Sketcher.Constraint("DistanceX", -1, 1, 2, 2, Q("1046.131818 mm")))
sketch9.setExpression("Constraints[8]", "Params.sketch9_height")
pocket6 = body.newObject("PartDesign::Pocket", "Pocket005")
pocket6.Profile = sketch9
pocket6.Type = "ThroughAll"

doc.recompute()
